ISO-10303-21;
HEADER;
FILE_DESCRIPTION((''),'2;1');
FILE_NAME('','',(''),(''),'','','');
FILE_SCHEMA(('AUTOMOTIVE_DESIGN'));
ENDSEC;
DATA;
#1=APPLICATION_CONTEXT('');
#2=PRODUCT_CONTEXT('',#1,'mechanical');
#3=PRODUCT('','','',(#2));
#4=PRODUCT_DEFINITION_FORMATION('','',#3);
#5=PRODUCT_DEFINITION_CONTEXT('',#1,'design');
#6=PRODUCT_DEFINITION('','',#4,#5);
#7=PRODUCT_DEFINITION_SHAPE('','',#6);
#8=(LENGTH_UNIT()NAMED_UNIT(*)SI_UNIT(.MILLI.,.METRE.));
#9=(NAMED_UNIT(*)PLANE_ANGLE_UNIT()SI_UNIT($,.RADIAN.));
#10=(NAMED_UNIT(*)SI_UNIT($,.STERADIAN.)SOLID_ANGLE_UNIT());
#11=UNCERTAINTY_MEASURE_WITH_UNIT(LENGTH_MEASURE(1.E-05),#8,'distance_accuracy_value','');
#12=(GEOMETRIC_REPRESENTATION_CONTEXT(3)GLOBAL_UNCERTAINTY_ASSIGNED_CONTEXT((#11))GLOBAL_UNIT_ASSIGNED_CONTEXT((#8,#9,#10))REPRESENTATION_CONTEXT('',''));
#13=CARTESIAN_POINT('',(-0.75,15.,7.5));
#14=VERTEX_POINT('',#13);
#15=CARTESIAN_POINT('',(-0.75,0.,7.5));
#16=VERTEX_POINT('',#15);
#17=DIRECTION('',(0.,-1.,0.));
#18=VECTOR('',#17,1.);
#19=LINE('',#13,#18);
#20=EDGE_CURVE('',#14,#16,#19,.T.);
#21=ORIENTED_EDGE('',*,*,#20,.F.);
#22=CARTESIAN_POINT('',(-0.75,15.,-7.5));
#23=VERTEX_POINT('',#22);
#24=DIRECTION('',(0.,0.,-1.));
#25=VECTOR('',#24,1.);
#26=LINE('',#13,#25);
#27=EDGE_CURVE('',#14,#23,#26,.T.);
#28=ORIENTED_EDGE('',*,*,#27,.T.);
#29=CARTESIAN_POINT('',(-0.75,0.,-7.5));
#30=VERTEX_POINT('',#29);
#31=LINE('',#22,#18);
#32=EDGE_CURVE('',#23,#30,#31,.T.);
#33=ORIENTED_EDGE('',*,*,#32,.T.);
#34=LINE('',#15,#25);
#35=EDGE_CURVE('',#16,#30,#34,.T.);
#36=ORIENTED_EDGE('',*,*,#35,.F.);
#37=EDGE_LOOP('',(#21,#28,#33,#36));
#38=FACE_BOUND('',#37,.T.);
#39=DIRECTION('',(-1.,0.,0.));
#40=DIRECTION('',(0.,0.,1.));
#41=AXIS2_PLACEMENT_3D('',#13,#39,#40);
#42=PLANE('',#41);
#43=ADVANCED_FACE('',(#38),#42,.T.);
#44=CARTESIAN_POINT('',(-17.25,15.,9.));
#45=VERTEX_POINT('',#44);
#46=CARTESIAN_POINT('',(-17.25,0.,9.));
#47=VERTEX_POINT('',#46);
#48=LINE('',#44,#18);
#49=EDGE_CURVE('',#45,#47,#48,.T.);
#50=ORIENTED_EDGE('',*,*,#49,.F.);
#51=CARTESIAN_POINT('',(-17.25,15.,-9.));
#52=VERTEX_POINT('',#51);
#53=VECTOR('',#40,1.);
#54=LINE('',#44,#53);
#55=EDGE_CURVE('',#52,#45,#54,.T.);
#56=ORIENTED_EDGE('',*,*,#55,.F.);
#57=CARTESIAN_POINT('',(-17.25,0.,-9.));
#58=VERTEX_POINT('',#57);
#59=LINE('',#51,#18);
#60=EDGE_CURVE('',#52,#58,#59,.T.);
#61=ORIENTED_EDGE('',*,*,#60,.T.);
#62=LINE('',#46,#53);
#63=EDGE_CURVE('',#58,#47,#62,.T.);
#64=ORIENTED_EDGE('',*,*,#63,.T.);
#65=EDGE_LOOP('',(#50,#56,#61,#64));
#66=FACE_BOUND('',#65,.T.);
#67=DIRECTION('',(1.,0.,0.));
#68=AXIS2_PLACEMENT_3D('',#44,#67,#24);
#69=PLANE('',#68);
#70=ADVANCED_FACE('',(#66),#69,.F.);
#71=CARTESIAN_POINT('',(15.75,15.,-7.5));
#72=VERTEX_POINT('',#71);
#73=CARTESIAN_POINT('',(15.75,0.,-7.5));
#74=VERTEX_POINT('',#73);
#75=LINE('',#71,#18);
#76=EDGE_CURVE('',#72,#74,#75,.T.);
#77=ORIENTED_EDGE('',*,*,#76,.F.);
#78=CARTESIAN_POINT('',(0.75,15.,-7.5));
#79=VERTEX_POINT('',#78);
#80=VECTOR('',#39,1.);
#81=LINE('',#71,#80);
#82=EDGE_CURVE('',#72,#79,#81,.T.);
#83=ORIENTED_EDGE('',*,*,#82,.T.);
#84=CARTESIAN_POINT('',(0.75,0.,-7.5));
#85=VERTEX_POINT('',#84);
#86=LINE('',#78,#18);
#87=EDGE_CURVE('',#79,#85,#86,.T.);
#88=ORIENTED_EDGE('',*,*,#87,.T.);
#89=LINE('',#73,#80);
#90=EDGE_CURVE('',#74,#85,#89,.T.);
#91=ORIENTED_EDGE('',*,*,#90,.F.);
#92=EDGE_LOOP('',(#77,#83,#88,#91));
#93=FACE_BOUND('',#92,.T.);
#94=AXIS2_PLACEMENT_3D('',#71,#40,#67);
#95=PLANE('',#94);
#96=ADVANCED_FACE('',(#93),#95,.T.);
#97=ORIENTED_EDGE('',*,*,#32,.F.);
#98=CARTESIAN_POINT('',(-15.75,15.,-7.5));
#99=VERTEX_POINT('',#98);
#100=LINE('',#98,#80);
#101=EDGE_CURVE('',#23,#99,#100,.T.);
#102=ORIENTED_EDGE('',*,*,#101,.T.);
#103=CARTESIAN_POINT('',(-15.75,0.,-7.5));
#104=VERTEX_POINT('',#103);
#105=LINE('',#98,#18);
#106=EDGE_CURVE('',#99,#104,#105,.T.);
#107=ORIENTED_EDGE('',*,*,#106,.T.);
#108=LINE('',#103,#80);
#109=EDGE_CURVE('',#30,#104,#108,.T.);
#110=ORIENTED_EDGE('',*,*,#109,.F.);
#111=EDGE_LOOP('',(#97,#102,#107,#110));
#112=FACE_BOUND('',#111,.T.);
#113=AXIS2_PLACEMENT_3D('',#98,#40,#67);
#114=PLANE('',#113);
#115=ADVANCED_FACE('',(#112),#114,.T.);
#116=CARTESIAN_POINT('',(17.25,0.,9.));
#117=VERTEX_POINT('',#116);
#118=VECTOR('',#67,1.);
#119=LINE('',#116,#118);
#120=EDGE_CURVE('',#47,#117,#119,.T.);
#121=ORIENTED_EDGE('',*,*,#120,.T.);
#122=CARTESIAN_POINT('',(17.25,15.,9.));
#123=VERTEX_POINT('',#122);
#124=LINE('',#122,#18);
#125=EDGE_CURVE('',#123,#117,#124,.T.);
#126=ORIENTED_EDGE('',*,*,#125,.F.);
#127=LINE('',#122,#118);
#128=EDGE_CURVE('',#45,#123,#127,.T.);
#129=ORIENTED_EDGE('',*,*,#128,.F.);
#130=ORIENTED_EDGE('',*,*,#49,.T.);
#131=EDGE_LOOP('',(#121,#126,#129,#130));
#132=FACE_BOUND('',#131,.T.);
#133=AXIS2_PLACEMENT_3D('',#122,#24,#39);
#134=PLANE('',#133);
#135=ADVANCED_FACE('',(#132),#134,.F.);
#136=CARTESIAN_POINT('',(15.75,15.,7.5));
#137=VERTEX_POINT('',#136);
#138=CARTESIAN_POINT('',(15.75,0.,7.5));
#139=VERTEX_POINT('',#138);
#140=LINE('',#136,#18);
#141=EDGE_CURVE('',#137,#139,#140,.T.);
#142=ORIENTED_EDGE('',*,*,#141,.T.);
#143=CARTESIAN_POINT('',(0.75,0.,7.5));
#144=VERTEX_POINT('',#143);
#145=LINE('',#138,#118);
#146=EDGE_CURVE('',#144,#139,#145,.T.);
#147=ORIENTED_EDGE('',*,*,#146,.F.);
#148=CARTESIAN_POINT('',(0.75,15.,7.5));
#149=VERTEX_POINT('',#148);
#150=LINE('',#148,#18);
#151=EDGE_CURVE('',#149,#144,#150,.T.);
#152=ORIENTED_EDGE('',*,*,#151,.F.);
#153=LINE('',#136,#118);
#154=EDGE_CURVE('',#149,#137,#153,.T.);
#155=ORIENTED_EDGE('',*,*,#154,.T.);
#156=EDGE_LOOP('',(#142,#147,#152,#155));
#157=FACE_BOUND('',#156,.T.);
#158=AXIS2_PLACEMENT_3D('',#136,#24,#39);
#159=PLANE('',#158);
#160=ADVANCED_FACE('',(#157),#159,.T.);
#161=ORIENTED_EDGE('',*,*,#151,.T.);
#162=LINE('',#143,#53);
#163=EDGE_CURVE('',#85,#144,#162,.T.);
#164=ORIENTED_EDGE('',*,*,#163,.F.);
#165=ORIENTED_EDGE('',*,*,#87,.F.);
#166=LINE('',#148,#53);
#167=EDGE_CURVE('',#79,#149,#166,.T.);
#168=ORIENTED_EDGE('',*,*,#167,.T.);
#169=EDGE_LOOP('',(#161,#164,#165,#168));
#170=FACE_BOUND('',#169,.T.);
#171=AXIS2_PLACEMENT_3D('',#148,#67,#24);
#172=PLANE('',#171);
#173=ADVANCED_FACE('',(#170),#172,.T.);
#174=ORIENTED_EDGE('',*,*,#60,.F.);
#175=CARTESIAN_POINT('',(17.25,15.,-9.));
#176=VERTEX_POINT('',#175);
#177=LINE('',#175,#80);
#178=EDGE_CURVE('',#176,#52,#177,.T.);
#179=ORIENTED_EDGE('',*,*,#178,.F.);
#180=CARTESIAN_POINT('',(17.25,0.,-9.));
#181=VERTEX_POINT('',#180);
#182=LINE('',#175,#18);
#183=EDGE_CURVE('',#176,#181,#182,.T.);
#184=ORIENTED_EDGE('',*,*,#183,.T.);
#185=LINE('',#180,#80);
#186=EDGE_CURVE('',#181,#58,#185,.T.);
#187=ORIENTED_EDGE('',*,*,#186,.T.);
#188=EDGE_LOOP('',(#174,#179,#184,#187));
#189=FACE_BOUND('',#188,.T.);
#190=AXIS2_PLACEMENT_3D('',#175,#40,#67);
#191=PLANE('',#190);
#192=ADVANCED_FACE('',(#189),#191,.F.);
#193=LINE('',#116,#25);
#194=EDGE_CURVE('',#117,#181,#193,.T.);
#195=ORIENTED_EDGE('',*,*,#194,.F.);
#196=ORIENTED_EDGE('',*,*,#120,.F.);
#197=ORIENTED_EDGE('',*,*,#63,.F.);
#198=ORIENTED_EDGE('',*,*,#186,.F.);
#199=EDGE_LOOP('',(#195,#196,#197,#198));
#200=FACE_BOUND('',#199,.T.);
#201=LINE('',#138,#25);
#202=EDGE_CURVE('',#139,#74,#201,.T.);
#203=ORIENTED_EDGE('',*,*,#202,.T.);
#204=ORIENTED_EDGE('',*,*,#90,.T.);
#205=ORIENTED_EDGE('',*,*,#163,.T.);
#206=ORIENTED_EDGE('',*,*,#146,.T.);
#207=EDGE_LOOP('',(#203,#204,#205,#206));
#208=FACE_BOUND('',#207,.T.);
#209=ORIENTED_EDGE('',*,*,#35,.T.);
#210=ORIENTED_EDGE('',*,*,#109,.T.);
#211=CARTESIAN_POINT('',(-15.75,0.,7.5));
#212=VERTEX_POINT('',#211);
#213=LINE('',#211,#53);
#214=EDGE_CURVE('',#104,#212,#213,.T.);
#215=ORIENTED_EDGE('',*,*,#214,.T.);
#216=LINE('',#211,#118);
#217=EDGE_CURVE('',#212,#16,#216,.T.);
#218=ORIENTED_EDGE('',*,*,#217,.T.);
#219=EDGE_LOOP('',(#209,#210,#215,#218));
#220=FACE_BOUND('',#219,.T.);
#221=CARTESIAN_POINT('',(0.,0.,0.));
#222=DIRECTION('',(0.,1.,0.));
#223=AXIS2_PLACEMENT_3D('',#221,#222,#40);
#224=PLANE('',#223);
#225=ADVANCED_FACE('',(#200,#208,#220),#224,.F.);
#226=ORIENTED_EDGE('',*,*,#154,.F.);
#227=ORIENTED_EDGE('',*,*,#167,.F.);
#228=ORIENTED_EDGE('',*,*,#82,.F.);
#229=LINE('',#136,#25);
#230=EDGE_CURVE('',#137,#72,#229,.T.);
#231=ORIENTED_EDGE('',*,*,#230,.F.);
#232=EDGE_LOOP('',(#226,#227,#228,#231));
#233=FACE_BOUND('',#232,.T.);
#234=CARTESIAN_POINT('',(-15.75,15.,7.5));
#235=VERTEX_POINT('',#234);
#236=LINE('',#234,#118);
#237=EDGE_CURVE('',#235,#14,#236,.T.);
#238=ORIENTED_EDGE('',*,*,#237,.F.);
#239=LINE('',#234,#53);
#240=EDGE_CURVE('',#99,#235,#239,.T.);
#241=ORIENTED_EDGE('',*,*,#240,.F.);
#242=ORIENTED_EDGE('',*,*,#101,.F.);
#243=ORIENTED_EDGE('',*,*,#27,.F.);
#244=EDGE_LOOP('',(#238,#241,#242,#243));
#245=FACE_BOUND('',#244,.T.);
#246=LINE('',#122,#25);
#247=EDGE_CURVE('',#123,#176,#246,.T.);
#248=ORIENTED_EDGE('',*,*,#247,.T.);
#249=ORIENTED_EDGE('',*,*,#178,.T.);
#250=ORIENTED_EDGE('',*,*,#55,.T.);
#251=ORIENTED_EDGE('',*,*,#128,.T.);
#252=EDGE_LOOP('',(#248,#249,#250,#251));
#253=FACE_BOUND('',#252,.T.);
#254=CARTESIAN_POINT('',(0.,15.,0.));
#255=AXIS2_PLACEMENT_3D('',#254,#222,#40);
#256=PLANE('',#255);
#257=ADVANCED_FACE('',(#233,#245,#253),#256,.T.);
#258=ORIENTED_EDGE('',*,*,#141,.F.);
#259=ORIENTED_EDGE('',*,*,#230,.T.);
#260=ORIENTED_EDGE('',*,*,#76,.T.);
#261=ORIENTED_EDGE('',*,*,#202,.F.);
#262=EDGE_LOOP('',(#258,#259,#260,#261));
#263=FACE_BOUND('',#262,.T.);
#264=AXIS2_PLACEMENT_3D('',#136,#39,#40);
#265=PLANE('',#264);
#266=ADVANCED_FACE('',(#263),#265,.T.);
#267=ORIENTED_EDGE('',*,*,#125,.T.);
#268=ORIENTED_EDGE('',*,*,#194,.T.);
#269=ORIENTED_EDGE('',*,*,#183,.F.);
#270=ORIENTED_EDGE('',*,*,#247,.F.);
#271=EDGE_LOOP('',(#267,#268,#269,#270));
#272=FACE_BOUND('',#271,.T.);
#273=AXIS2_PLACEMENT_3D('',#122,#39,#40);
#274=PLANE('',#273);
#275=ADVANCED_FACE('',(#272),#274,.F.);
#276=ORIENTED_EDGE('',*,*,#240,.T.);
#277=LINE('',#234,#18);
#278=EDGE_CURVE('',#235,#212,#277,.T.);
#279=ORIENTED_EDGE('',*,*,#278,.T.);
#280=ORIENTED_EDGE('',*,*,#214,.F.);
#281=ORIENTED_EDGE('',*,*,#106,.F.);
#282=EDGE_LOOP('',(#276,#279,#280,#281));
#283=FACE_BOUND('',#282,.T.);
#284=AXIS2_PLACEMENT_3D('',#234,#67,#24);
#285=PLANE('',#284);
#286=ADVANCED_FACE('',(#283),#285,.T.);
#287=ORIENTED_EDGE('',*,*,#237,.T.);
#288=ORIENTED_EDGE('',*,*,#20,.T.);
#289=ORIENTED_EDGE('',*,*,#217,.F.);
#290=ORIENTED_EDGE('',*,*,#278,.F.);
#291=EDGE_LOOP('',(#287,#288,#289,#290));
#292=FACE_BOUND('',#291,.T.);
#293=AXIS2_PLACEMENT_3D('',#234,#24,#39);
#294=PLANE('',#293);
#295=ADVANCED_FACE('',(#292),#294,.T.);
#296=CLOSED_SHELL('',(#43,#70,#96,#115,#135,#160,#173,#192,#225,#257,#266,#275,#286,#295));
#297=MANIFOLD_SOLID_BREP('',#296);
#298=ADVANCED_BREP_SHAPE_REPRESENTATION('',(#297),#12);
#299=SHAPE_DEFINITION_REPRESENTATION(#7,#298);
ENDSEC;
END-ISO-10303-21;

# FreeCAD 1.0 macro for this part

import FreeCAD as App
import Part
import Sketcher

V = App.Vector

doc = App.newDocument("Part")
body = doc.addObject("PartDesign::Body", "Body")

sketch1 = doc.addObject("Sketcher::SketchObject", "Sketch")
body.addObject(sketch1)
sketch1.AttachmentSupport = (doc.XZ_Plane, [""])
sketch1.MapMode = "FlatFace"
sketch1.addGeometry([
    Part.LineSegment(V(-17, -9, 0), V(-17, 9, 0)),
    Part.LineSegment(V(-17, 9, 0), V(17, 9, 0)),
    Part.LineSegment(V(17, 9, 0), V(17, -9, 0)),
    Part.LineSegment(V(17, -9, 0), V(-17, -9, 0)),
    Part.LineSegment(V(-1, 8, 0), V(-16, 8, 0)),
    Part.LineSegment(V(-16, 8, 0), V(-16, -8, 0)),
    Part.LineSegment(V(-16, -8, 0), V(-1, -8, 0)),
    Part.LineSegment(V(-1, -8, 0), V(-1, 8, 0)),
    Part.LineSegment(V(16, 8, 0), V(1, 8, 0)),
    Part.LineSegment(V(1, 8, 0), V(1, -8, 0)),
    Part.LineSegment(V(1, -8, 0), V(16, -8, 0)),
    Part.LineSegment(V(16, -8, 0), V(16, 8, 0)),
], False)
sketch1.addConstraint([
    Sketcher.Constraint("Coincident", 0, 2, 1, 1),
    Sketcher.Constraint("Coincident", 1, 2, 2, 1),
    Sketcher.Constraint("Coincident", 2, 2, 3, 1),
    Sketcher.Constraint("Coincident", 3, 2, 0, 1),
    Sketcher.Constraint("Coincident", 4, 2, 5, 1),
    Sketcher.Constraint("Coincident", 5, 2, 6, 1),
    Sketcher.Constraint("Coincident", 6, 2, 7, 1),
    Sketcher.Constraint("Coincident", 7, 2, 4, 1),
    Sketcher.Constraint("Coincident", 8, 2, 9, 1),
    Sketcher.Constraint("Coincident", 9, 2, 10, 1),
    Sketcher.Constraint("Coincident", 10, 2, 11, 1),
    Sketcher.Constraint("Coincident", 11, 2, 8, 1),
    Sketcher.Constraint("Vertical", 0),
    Sketcher.Constraint("Horizontal", 1),
    Sketcher.Constraint("Vertical", 2),
    Sketcher.Constraint("Horizontal", 3),
    Sketcher.Constraint("Horizontal", 4),
    Sketcher.Constraint("Vertical", 5),
    Sketcher.Constraint("Horizontal", 6),
    Sketcher.Constraint("Vertical", 7),
    Sketcher.Constraint("Horizontal", 8),
    Sketcher.Constraint("Vertical", 9),
    Sketcher.Constraint("Horizontal", 10),
    Sketcher.Constraint("Vertical", 11),
    Sketcher.Constraint("Symmetric", 0, 2, 2, 2, -1, 1),
    Sketcher.Constraint("Symmetric", 6, 2, 8, 2, -1, 1),
    Sketcher.Constraint("Symmetric", 4, 2, 10, 2, -1, 1),
    Sketcher.Constraint("Horizontal", 7, 2, 8, 2),
    Sketcher.Constraint("Equal", 10, 5),
    Sketcher.Constraint("DistanceX", 4, 2, 4, 1, 15.0),
    Sketcher.Constraint("DistanceY", 0, 1, 0, 2, 18.0),
    Sketcher.Constraint("DistanceX", 1, 1, 1, 2, 34.5),
    Sketcher.Constraint("DistanceX", 4, 2, 1, 2, 33.0),
])
pad1 = doc.addObject("PartDesign::Pad", "Pad")
body.addObject(pad1)
pad1.Profile = sketch1
pad1.Length = 15
pad1.Reversed = True

doc.recompute()
